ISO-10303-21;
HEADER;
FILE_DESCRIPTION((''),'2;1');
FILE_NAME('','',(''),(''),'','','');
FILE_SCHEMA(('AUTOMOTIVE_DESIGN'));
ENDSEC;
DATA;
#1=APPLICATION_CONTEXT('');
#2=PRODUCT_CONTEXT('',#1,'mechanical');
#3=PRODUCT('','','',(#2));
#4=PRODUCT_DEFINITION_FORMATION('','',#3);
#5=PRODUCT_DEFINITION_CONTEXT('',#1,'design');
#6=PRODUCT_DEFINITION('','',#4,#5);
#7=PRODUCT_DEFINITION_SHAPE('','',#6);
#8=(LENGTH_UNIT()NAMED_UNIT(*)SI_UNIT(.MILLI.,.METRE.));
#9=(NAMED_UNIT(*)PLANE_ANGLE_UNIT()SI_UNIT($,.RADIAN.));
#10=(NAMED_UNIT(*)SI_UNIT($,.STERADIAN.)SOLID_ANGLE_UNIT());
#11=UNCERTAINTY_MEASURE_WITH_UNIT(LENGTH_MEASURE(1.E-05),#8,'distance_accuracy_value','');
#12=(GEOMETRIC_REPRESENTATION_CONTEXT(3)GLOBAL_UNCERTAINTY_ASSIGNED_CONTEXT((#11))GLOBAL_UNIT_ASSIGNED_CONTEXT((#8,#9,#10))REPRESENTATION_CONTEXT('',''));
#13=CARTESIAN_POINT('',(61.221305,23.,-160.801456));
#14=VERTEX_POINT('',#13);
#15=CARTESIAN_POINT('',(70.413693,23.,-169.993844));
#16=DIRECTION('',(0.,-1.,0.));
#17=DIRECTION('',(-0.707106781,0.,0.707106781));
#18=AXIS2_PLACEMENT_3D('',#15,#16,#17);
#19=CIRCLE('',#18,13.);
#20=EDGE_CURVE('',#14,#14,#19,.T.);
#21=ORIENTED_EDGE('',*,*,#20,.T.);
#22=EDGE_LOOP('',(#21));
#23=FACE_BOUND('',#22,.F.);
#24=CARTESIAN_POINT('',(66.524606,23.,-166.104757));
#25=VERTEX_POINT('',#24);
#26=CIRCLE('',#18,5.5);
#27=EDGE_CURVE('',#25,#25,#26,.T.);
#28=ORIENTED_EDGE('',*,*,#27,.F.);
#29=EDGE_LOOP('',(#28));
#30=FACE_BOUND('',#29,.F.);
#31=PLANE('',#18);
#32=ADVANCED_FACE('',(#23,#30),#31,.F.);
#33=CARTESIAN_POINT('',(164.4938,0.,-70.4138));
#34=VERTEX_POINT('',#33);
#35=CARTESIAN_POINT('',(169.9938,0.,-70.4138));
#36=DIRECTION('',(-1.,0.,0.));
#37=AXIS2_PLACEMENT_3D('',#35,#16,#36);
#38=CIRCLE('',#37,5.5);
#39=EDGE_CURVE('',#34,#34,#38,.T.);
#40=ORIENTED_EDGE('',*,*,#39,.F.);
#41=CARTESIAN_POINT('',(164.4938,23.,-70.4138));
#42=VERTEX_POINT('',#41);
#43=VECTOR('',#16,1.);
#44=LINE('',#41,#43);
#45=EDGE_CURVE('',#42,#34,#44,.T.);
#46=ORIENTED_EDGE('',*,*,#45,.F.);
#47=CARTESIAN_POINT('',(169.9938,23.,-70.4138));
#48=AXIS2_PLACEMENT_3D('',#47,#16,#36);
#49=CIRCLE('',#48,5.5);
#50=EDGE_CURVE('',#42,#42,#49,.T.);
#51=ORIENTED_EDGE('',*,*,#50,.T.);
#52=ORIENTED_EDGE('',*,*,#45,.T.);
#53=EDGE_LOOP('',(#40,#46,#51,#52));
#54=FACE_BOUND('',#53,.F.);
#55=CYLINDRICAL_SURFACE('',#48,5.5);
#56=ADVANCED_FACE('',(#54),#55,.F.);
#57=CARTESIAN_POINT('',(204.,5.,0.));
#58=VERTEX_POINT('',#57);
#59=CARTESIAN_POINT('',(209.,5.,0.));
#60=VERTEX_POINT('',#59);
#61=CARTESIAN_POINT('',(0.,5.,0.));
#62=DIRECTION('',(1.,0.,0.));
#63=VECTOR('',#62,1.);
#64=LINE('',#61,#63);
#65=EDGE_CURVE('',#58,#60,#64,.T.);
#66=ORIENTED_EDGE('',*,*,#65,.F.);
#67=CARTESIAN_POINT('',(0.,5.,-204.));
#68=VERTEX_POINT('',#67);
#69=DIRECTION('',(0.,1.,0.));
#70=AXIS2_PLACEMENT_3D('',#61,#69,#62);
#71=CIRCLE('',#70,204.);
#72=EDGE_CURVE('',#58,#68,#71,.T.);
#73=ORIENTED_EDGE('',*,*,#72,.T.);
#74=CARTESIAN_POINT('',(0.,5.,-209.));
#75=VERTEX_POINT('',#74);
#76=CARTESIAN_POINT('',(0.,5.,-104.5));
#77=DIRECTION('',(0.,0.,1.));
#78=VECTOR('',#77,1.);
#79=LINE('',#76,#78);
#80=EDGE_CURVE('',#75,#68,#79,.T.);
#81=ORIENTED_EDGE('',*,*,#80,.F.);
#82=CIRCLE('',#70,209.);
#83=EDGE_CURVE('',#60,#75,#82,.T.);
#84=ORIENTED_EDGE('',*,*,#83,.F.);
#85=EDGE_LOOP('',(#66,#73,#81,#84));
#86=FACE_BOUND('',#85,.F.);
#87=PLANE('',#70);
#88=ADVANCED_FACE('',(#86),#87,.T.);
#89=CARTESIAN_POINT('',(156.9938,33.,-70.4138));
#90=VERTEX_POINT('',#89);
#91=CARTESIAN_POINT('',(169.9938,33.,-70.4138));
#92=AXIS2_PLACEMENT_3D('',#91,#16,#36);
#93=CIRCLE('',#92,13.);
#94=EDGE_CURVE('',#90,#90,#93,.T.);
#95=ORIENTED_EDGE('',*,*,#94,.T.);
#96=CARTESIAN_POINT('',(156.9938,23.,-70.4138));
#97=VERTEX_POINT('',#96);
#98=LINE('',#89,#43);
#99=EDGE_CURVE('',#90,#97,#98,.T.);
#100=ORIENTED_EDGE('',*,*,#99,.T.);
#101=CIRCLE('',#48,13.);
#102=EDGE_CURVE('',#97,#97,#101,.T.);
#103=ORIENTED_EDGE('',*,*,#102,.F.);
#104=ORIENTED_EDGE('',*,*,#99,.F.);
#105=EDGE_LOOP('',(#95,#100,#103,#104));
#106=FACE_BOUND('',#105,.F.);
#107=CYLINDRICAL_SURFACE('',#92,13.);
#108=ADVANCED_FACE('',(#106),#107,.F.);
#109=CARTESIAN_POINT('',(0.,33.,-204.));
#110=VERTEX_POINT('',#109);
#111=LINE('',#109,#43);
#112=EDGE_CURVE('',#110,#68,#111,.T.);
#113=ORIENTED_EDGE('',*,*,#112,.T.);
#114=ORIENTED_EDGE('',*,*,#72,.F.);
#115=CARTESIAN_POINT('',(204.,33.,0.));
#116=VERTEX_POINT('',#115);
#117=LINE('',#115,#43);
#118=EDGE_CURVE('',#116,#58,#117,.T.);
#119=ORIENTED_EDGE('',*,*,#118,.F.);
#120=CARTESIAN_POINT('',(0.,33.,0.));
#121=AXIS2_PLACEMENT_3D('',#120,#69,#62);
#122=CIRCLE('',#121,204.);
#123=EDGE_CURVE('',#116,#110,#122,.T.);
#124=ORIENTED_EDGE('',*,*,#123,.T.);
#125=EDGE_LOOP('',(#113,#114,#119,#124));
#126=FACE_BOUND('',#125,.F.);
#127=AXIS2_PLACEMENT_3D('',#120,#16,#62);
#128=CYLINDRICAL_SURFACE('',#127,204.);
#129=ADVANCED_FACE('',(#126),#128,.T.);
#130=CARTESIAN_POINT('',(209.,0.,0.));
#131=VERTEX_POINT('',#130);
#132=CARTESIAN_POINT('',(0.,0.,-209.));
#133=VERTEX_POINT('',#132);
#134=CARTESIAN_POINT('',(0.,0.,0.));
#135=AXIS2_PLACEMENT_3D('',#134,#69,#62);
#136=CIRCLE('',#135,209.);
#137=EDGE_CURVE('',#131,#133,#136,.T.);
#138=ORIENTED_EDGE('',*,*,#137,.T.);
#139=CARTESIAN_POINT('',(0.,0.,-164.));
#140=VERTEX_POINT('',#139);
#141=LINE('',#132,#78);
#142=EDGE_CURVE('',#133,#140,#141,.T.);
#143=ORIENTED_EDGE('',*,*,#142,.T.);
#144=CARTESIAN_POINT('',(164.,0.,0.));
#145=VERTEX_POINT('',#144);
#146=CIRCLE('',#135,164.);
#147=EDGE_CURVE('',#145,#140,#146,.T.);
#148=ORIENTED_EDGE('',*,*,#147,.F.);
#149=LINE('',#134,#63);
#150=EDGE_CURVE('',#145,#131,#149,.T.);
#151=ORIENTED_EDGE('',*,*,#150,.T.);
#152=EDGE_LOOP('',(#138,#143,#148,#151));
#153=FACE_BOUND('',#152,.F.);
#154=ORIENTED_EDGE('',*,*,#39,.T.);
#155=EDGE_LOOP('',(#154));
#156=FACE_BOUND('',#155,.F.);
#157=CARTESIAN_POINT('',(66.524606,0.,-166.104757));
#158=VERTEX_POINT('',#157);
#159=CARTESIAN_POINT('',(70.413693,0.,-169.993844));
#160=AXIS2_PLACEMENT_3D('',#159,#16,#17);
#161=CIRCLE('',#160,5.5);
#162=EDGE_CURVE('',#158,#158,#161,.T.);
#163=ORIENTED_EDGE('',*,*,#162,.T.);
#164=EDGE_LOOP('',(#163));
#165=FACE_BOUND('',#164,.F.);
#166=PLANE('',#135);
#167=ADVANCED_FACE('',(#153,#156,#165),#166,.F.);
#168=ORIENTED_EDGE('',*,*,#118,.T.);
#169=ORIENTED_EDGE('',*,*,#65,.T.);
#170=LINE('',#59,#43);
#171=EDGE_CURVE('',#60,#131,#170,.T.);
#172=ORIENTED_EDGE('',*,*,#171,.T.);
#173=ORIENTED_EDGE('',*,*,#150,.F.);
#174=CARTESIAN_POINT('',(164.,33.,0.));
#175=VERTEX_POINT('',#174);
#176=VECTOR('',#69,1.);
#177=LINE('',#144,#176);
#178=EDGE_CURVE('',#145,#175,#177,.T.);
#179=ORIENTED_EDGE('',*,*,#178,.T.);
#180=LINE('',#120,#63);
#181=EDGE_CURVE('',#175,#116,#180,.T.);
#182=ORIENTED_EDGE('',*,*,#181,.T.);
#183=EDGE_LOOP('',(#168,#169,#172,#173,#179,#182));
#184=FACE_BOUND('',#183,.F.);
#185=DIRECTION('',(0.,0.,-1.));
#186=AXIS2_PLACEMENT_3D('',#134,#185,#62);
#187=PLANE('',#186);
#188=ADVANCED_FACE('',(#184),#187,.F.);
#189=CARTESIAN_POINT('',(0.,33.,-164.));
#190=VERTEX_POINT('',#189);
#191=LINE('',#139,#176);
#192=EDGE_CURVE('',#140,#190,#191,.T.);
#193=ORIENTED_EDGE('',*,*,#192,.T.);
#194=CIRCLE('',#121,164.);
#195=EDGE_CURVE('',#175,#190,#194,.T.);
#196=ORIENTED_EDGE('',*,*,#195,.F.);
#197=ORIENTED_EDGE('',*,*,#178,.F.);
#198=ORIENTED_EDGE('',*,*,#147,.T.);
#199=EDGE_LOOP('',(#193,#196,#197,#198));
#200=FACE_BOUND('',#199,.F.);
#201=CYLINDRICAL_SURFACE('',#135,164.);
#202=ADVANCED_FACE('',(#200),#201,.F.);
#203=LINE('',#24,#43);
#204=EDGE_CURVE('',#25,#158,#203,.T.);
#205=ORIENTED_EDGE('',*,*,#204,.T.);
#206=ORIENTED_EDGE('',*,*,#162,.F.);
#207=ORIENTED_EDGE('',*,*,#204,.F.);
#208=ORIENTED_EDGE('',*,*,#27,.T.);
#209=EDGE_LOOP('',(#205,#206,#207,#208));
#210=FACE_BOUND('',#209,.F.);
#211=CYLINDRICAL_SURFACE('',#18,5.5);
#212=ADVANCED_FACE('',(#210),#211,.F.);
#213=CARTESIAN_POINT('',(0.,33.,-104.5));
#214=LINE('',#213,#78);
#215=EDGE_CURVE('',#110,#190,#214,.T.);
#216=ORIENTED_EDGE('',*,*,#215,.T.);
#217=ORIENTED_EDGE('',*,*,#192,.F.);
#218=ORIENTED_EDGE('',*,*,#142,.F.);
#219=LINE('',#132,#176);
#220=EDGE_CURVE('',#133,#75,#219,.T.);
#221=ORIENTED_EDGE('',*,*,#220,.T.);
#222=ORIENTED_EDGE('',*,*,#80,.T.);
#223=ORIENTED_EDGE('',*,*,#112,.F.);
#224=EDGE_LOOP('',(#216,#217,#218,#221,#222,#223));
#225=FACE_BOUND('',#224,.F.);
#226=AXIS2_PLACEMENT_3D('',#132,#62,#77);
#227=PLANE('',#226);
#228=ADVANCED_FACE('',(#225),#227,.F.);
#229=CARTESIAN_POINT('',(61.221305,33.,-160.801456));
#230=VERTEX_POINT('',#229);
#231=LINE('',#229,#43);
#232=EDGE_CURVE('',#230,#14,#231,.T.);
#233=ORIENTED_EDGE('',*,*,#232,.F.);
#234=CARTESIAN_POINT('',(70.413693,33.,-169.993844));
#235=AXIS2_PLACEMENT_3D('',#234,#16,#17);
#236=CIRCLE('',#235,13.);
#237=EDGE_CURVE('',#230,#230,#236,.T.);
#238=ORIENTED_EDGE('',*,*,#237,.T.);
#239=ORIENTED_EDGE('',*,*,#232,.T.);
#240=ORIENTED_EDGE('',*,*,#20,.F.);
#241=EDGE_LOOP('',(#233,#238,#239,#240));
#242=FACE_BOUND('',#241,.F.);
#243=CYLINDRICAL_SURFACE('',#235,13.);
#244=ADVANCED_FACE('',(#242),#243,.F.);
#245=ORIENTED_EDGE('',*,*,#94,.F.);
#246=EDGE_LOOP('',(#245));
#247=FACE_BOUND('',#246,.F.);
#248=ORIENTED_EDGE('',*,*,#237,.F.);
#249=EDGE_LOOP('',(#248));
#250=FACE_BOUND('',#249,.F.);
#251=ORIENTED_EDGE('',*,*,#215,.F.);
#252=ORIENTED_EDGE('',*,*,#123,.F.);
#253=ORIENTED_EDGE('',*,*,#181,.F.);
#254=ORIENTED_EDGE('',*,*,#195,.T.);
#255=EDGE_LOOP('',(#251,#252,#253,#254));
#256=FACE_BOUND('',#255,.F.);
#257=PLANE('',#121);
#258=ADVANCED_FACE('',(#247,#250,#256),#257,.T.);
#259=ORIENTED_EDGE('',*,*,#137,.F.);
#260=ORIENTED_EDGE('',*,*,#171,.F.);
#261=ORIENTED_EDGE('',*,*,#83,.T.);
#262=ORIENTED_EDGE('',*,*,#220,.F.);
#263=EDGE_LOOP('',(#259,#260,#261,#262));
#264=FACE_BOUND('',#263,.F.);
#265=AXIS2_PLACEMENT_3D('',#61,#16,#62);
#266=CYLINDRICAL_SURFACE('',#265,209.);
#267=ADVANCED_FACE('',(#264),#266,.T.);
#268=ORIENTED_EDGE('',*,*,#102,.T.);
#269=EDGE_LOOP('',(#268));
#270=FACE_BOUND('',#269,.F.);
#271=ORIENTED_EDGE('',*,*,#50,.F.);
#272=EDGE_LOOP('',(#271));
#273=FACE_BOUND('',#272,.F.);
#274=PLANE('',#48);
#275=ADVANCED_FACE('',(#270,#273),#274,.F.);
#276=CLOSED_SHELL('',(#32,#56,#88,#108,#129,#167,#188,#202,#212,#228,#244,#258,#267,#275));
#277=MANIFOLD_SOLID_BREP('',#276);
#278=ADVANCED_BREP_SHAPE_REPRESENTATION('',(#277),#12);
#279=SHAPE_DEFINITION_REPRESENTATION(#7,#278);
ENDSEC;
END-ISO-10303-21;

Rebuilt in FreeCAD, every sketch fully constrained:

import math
import FreeCAD as App
import Part
import Sketcher

V = App.Vector
Q = App.Units.Quantity

doc = App.newDocument("Part")
body = doc.addObject("PartDesign::Body", "Body")

# Sketch on XY plane
sketch1 = doc.addObject("Sketcher::SketchObject", "Sketch")
body.addObject(sketch1)
sketch1.AttachmentSupport = (doc.XY_Plane, [""])
sketch1.MapMode = "FlatFace"
sketch1.addGeometry([
    Part.LineSegment(V(164, 33, 0), V(164, 0, 0)),  # 0
    Part.LineSegment(V(164, 0, 0), V(209, 0, 0)),  # 1
    Part.LineSegment(V(209, 0, 0), V(209, 5, 0)),  # 2
    Part.LineSegment(V(209, 5, 0), V(204, 5, 0)),  # 3
    Part.LineSegment(V(204, 5, 0), V(204, 33, 0)),  # 4
    Part.LineSegment(V(204, 33, 0), V(164, 33, 0)),  # 5
], False)
sketch1.addConstraint([
    Sketcher.Constraint("Coincident", 0, 2, 1, 1),
    Sketcher.Constraint("Coincident", 1, 2, 2, 1),
    Sketcher.Constraint("Coincident", 2, 2, 3, 1),
    Sketcher.Constraint("Coincident", 3, 2, 4, 1),
    Sketcher.Constraint("Coincident", 4, 2, 5, 1),
    Sketcher.Constraint("Coincident", 5, 2, 0, 1),
    Sketcher.Constraint("Vertical", 0),
    Sketcher.Constraint("Horizontal", 1),
    Sketcher.Constraint("Vertical", 2),
    Sketcher.Constraint("Horizontal", 3),
    Sketcher.Constraint("Vertical", 4),
    Sketcher.Constraint("Horizontal", 5),
    Sketcher.Constraint("PointOnObject", 0, 2, -1),
    Sketcher.Constraint("Equal", 3, 2),
    Sketcher.Constraint("DistanceX", 3, 2, 3, 1, Q("5 mm")),
    Sketcher.Constraint("DistanceY", 4, 1, 4, 2, Q("28 mm")),
    Sketcher.Constraint("DistanceX", 1, 1, 1, 2, Q("45 mm")),
    Sketcher.Constraint("DistanceX", -1, 1, 0, 2, Q("164 mm")),
])
revolution = doc.addObject("PartDesign::Revolution", "Revolution")
body.addObject(revolution)
revolution.Profile = sketch1
revolution.ReferenceAxis = (sketch1, ["V_Axis"])
revolution.Angle = 360

# Sketch on XZ plane
sketch2 = doc.addObject("Sketcher::SketchObject", "Sketch001")
body.addObject(sketch2)
sketch2.AttachmentSupport = (doc.XZ_Plane, [""])
sketch2.MapMode = "FlatFace"
sketch2.AttachmentOffset = App.Placement(V(0, 0, -33), App.Rotation())
sketch2.addGeometry(Part.Circle(V(-70, -170, 0), V(0, 0, 1), 6), False)
sketch2.addConstraint([
    Sketcher.Constraint("Diameter", 0, Q("11 mm")),
    Sketcher.Constraint("DistanceX", 0, 3, -1, 1, Q("70.4138 mm")),
    Sketcher.Constraint("DistanceY", 0, 3, -1, 1, Q("169.9938 mm")),
])
doc.recompute()
hole = doc.addObject("PartDesign::Hole", "Hole")
body.addObject(hole)
hole.Profile = sketch2
hole.ThreadType = "None"
hole.Diameter = 11
hole.DepthType = "ThroughAll"
hole.HoleCutType = "Counterbore"
hole.HoleCutDiameter = 26
hole.HoleCutDepth = 10
hole.Reversed = True
doc.recompute()

polarpattern = doc.addObject("PartDesign::PolarPattern", "PolarPattern")
body.addObject(polarpattern)
polarpattern.Originals = [hole]
polarpattern.Axis = (doc.Y_Axis, [""])
polarpattern.Angle = 360
polarpattern.Occurrences = 8
body.Tip = polarpattern

# Sketch on XZ plane
sketch3 = doc.addObject("Sketcher::SketchObject", "Sketch002")
body.addObject(sketch3)
sketch3.AttachmentSupport = (doc.XZ_Plane, [""])
sketch3.MapMode = "FlatFace"
sketch3.addGeometry([
    Part.ArcOfCircle(Part.Circle(V(0, 0, 0), V(0, 0, 1), 209), math.radians(0), math.radians(270)),
    Part.LineSegment(V(209, 0, 0), V(0, 0, 0)),
    Part.LineSegment(V(0, 0, 0), V(0, -209, 0)),
], False)
sketch3.addConstraint([
    Sketcher.Constraint("Coincident", 0, 1, 1, 1),
    Sketcher.Constraint("Coincident", 1, 2, 2, 1),
    Sketcher.Constraint("Coincident", 2, 2, 0, 2),
    Sketcher.Constraint("Horizontal", 1),
    Sketcher.Constraint("Vertical", 2),
    Sketcher.Constraint("Coincident", 0, 3, -1, 1),
    Sketcher.Constraint("Coincident", 1, 2, -1, 1),
    Sketcher.Constraint("Radius", 0, Q("209 mm")),
])
pocket1 = doc.addObject("PartDesign::Pocket", "Pocket")
body.addObject(pocket1)
pocket1.Profile = sketch3
pocket1.Type = "ThroughAll"

doc.recompute()
